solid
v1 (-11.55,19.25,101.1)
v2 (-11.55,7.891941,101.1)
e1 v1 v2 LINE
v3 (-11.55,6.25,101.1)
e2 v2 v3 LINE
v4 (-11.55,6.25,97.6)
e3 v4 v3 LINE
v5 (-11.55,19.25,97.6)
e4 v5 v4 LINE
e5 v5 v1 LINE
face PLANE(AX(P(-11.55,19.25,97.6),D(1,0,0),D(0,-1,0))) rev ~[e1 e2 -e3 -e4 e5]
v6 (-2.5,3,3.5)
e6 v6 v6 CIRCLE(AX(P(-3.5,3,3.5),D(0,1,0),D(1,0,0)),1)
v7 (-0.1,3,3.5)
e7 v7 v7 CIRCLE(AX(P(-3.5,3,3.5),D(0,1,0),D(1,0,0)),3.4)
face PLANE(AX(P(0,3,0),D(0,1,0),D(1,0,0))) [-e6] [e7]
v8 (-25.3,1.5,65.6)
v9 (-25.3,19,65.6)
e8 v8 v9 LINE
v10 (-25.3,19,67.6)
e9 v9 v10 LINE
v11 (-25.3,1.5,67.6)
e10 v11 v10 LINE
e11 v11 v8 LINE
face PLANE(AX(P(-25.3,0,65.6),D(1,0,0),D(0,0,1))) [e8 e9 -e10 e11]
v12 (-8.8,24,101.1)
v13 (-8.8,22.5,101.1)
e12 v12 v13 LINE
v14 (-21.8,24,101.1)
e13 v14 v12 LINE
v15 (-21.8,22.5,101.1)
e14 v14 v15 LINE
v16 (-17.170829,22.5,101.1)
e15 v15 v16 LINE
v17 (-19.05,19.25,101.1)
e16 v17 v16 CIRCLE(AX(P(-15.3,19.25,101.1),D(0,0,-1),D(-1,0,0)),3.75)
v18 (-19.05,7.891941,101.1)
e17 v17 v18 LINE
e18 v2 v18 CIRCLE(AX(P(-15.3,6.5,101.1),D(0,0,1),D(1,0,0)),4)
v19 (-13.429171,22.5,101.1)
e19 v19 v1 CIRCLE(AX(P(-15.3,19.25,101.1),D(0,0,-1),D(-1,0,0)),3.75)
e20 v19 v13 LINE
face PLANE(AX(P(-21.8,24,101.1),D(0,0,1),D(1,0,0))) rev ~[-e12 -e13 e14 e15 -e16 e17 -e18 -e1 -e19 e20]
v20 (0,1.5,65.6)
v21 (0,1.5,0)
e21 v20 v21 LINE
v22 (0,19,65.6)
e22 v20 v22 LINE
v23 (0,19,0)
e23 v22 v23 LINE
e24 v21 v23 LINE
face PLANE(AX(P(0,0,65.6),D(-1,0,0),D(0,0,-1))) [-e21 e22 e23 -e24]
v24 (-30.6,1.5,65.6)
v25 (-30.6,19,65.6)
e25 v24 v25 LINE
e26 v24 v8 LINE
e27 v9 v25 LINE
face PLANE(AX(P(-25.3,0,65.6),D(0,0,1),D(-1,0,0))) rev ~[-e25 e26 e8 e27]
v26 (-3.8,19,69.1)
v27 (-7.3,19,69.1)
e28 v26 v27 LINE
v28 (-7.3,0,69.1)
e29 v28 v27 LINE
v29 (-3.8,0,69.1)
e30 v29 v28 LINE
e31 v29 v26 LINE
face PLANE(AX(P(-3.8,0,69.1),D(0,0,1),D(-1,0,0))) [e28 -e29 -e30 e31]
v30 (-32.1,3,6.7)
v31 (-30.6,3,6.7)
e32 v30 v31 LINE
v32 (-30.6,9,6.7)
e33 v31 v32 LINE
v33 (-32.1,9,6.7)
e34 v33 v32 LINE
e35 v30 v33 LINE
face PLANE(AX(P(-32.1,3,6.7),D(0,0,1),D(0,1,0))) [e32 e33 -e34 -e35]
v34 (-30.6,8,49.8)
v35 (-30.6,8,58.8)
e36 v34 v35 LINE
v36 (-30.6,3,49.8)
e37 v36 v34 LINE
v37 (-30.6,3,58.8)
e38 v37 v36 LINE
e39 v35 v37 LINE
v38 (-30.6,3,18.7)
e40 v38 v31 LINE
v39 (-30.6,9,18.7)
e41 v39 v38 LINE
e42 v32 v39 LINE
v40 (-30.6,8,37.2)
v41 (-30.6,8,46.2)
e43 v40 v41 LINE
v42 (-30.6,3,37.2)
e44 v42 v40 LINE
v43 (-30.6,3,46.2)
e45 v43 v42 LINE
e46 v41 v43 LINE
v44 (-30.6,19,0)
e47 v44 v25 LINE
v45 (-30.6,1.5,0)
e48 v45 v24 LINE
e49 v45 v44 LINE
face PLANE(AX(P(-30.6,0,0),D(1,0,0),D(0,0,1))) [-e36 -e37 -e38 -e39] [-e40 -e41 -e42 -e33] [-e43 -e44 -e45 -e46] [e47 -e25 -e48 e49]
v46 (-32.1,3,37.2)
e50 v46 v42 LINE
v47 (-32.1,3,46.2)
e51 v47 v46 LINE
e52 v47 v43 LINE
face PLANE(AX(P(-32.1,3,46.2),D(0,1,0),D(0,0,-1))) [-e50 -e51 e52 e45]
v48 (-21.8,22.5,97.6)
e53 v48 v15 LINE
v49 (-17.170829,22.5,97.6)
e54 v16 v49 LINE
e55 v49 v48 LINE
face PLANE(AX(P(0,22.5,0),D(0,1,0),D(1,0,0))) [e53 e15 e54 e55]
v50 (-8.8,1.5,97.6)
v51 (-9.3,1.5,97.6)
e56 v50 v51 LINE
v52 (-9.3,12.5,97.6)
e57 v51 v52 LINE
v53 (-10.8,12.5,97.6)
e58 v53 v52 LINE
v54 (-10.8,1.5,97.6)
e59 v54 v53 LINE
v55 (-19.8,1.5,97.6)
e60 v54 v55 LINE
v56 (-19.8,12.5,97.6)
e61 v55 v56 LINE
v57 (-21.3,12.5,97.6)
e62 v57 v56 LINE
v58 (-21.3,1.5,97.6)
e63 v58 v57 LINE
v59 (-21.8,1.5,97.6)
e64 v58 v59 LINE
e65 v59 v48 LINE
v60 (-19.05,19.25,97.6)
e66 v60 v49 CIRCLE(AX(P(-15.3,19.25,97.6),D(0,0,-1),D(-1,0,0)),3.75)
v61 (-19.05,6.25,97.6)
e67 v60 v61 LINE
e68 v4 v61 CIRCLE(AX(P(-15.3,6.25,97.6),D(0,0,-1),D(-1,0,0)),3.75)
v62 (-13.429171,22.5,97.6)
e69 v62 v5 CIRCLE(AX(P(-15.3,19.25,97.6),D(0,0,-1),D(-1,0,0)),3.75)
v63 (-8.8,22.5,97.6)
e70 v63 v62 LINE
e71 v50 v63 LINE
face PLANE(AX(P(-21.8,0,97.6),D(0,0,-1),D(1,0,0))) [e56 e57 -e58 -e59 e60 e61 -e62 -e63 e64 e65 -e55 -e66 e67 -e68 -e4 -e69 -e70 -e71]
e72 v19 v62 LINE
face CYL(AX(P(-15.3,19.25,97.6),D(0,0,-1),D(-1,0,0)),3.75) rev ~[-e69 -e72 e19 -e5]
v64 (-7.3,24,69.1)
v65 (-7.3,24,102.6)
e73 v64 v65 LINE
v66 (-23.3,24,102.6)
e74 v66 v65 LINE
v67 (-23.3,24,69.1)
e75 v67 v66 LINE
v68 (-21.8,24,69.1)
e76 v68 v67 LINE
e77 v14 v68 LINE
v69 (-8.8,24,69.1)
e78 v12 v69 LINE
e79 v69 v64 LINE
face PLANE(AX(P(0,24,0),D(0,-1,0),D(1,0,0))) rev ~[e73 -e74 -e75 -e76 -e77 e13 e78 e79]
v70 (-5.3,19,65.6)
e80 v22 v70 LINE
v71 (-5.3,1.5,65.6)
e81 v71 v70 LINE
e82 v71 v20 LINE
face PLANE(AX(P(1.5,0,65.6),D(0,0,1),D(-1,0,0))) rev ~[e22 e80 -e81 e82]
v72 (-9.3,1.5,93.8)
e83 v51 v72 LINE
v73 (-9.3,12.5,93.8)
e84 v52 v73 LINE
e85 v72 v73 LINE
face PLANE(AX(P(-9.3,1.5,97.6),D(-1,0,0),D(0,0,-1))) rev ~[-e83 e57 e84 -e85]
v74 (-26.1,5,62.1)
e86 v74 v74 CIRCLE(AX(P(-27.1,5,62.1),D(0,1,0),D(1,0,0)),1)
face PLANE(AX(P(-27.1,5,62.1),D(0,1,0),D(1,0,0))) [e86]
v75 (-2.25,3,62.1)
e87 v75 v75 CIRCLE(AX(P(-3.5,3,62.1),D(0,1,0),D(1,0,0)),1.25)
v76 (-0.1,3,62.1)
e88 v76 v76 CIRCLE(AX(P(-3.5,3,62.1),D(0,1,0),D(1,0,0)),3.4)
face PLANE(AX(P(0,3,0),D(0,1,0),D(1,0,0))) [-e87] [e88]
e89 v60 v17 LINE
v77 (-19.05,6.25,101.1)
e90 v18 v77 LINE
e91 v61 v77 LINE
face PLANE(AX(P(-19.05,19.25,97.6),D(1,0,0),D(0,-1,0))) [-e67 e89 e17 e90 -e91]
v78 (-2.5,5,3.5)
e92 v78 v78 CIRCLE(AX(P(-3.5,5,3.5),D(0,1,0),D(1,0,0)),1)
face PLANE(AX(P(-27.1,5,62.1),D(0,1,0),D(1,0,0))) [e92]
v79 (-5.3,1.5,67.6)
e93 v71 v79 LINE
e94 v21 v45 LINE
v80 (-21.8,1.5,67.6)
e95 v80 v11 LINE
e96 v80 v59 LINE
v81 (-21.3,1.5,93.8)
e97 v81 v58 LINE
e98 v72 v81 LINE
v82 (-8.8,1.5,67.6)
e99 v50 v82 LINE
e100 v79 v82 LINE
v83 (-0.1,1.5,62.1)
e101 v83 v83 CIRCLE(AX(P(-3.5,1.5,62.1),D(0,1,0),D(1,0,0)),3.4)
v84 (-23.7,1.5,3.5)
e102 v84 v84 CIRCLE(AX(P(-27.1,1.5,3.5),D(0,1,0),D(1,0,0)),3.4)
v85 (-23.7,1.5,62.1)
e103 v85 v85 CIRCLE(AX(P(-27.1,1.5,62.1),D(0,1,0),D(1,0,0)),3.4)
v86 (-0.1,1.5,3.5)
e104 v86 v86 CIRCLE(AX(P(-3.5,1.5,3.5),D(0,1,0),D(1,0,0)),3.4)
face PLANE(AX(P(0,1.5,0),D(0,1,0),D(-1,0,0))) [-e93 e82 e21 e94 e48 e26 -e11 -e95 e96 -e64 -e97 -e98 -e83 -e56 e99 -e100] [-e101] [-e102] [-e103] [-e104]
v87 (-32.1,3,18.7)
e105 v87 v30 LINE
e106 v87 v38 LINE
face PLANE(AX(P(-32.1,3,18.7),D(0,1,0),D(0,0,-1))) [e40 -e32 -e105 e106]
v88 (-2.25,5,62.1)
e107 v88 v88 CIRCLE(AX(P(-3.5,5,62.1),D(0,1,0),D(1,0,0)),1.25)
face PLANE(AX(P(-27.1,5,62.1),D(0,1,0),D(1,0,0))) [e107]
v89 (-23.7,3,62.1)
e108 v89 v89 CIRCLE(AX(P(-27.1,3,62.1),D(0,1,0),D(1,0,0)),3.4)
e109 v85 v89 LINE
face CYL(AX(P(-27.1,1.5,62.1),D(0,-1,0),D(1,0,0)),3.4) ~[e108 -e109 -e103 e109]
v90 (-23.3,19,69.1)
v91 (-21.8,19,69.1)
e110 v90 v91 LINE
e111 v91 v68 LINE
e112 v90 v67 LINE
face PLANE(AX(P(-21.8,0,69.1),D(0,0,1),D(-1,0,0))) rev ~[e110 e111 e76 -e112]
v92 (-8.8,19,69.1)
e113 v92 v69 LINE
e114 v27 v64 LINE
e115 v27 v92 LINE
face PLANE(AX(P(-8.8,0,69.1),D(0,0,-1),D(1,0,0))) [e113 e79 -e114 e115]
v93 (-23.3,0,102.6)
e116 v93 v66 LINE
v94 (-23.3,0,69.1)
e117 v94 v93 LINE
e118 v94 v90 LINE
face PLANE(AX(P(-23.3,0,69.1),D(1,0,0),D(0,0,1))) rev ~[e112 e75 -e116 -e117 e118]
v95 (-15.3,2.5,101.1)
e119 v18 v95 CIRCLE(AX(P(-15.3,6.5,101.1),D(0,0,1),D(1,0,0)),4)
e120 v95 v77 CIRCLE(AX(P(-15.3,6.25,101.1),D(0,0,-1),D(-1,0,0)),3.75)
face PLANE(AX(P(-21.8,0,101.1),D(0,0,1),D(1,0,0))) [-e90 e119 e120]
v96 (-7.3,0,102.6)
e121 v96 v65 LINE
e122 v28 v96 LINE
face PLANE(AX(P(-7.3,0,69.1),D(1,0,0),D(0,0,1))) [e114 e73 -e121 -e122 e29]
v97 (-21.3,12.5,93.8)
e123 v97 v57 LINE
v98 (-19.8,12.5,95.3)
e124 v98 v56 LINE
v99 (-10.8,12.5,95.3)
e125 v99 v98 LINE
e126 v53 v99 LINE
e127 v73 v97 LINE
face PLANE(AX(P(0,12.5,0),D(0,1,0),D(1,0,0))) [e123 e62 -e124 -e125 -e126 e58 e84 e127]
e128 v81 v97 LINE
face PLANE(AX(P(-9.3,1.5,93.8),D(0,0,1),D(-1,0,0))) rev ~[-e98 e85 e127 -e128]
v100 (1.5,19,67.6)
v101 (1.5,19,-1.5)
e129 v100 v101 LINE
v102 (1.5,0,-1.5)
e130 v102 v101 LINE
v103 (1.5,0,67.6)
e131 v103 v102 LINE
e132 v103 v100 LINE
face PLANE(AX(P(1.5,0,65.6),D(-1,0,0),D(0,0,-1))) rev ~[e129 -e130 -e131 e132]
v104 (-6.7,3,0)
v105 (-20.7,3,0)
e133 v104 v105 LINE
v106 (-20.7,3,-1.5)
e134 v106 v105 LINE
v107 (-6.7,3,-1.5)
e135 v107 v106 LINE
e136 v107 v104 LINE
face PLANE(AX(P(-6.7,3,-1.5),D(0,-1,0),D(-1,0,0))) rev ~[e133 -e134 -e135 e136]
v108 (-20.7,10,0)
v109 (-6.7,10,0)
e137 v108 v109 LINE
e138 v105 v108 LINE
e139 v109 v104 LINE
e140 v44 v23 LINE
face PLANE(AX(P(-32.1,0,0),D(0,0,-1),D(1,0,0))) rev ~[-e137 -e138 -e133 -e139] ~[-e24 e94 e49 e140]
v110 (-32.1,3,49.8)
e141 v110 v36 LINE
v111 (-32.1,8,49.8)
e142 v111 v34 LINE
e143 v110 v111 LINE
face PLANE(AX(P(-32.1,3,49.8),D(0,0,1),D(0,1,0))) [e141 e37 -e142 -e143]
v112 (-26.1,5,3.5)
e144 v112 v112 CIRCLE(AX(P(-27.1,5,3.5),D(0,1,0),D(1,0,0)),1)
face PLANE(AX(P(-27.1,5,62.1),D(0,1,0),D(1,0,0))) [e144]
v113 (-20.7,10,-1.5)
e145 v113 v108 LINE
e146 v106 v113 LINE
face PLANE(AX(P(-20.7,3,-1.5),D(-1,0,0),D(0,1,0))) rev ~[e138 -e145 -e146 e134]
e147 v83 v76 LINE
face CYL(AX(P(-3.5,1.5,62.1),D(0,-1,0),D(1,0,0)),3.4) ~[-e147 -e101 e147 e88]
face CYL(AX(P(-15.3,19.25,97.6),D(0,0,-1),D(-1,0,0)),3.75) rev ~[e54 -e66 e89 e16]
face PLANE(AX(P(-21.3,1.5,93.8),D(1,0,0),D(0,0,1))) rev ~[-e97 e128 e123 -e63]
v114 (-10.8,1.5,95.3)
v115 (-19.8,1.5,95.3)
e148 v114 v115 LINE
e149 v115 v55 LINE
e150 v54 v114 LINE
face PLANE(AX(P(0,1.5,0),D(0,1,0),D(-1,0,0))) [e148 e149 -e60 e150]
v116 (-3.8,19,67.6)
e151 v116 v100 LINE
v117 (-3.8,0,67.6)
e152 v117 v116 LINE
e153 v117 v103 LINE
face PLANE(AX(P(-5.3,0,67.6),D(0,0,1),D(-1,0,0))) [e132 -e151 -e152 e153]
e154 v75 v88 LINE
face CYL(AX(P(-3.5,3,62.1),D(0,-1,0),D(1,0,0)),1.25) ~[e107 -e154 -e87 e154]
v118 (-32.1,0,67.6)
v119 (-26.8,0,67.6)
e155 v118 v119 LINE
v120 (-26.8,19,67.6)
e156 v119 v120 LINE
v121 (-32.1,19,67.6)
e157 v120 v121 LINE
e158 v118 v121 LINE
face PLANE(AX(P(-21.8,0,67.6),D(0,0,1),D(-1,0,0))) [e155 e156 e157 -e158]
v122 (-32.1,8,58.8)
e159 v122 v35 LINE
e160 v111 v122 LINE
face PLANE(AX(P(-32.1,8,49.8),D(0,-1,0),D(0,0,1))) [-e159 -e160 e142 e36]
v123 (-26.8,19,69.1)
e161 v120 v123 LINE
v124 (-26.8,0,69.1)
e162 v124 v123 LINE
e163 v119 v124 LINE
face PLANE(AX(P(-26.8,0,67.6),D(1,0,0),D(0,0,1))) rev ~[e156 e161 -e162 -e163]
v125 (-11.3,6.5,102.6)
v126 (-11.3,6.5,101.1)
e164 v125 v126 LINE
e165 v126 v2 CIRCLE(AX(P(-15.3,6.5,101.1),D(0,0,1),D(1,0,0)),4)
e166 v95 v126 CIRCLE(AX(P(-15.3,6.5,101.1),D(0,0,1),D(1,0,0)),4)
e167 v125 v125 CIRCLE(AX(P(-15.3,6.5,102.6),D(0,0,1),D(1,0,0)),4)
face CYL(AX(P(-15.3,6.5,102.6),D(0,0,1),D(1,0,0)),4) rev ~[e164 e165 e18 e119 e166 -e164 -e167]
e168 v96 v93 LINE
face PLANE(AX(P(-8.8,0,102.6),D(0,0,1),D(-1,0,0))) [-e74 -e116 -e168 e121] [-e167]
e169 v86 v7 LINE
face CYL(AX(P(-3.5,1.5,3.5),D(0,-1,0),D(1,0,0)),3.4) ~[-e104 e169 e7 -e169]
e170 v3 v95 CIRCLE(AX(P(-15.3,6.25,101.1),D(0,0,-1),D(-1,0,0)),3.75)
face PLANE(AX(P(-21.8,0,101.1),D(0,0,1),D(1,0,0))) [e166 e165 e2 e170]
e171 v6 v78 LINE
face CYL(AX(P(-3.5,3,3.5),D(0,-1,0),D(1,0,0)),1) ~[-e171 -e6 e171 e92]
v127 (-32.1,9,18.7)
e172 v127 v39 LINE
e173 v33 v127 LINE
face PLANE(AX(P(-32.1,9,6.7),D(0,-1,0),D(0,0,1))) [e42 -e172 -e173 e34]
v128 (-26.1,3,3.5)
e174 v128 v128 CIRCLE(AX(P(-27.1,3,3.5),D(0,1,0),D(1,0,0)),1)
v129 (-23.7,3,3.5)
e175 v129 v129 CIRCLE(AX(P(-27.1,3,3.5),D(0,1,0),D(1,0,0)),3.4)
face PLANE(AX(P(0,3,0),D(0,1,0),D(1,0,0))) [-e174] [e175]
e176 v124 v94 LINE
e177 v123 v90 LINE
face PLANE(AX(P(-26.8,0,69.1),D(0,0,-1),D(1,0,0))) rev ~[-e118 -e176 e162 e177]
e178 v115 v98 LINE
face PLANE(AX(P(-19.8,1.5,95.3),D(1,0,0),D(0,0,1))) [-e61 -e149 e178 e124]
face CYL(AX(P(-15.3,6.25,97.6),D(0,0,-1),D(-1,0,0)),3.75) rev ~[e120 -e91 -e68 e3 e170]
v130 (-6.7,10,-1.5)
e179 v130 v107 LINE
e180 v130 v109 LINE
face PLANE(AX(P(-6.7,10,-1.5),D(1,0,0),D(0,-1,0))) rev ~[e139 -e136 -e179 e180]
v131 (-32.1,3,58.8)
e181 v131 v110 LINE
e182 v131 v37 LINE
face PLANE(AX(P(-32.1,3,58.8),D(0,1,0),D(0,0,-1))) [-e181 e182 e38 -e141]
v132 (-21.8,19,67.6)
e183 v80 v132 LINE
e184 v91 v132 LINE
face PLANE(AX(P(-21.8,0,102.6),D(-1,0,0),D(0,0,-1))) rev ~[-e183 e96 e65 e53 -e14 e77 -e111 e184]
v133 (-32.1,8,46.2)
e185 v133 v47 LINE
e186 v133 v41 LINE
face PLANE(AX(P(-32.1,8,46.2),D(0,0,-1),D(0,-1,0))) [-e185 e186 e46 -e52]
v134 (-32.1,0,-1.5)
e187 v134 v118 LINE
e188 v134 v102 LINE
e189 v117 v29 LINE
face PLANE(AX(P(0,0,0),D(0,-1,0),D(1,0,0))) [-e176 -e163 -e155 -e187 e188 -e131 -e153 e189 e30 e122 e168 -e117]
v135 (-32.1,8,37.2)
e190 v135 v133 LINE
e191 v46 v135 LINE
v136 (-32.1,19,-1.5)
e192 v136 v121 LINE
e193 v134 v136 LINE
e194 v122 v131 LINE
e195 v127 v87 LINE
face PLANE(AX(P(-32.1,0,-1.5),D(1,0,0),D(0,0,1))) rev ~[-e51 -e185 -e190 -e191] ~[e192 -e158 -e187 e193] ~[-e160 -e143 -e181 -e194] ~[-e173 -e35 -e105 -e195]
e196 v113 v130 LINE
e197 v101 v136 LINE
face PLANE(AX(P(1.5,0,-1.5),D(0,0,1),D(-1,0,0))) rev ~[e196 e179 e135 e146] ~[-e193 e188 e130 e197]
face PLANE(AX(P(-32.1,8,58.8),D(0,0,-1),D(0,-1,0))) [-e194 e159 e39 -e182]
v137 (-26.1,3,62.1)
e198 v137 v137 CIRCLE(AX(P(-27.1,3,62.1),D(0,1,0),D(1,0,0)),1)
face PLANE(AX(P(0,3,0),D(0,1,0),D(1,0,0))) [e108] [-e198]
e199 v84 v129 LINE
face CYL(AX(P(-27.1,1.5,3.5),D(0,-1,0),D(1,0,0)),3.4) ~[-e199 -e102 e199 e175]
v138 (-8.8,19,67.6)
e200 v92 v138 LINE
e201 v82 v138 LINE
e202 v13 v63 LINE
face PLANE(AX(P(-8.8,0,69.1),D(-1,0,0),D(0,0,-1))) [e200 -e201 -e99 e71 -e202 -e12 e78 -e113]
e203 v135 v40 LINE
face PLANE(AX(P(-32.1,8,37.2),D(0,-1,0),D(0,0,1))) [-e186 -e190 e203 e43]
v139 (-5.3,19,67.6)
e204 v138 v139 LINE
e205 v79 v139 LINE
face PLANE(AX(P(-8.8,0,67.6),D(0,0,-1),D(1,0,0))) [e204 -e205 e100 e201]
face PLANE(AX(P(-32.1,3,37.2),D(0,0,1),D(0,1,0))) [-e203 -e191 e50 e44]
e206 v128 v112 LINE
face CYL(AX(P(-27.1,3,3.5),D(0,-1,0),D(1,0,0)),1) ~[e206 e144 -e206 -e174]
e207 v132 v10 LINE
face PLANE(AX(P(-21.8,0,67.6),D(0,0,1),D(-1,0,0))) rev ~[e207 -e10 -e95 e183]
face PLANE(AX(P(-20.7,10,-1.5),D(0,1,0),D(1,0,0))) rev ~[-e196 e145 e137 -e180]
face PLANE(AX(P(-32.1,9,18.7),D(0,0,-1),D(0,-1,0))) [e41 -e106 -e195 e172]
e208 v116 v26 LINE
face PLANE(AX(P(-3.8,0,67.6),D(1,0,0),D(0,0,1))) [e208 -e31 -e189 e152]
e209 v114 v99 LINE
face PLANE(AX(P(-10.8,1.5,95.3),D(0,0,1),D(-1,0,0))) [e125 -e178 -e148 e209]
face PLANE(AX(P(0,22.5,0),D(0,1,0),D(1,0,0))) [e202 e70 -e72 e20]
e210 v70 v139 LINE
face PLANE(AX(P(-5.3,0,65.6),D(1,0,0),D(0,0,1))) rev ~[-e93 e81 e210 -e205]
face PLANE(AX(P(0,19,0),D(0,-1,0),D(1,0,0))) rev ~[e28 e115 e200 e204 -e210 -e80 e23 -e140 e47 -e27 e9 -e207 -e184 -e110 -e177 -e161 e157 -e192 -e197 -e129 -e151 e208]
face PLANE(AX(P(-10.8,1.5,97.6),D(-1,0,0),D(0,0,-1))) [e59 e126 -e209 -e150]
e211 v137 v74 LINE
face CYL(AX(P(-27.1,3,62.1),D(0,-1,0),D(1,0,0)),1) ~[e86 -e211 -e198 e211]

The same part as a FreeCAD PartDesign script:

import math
import FreeCAD as App
import Part
import Sketcher

V = App.Vector
Q = App.Units.Quantity

doc = App.newDocument("Part")
body = doc.addObject("PartDesign::Body", "Body")

sketch1 = body.newObject("Sketcher::SketchObject", "Sketch")
sketch1.AttachmentSupport = (doc.getObject("XZ_Plane"), [""])
sketch1.MapMode = "FlatFace"
sketch1.addGeometry(Part.LineSegment(V(0, 66, 0), V(0, 0, 0)), False)
sketch1.addGeometry(Part.LineSegment(V(0, 0, 0), V(-31, 0, 0)), False)
sketch1.addGeometry(Part.LineSegment(V(-31, 0, 0), V(-31, 66, 0)), False)
sketch1.addGeometry(Part.LineSegment(V(-31, 66, 0), V(0, 66, 0)), False)
sketch1.addConstraint(Sketcher.Constraint("Coincident", 0, 2, 1, 1))
sketch1.addConstraint(Sketcher.Constraint("Coincident", 1, 2, 2, 1))
sketch1.addConstraint(Sketcher.Constraint("Coincident", 2, 2, 3, 1))
sketch1.addConstraint(Sketcher.Constraint("Coincident", 3, 2, 0, 1))
sketch1.addConstraint(Sketcher.Constraint("Vertical", 0))
sketch1.addConstraint(Sketcher.Constraint("Horizontal", 1))
sketch1.addConstraint(Sketcher.Constraint("Vertical", 2))
sketch1.addConstraint(Sketcher.Constraint("Horizontal", 3))
sketch1.addConstraint(Sketcher.Constraint("Coincident", 0, 2, -1, 1))
sketch1.addConstraint(Sketcher.Constraint("DistanceX", 1, 2, 1, 1, Q("30.6 mm")))
sketch1.addConstraint(Sketcher.Constraint("DistanceY", 0, 2, 0, 1, Q("65.6 mm")))
pad1 = body.newObject("PartDesign::Pad", "Pad")
pad1.Profile = sketch1
pad1.Length = 1.5
pad1.Reversed = True

sketch2 = body.newObject("Sketcher::SketchObject", "Sketch001")
sketch2.AttachmentSupport = (doc.getObject("XZ_Plane"), [""])
sketch2.MapMode = "FlatFace"
sketch2.AttachmentOffset = App.Placement(V(0, 0, -1.5), App.Rotation())
sketch2.addGeometry(Part.Circle(V(-27.1, 62.1, 0), V(0, 0, 1), 3.4), False)
sketch2.addGeometry(Part.Circle(V(-3.5, 62.1, 0), V(0, 0, 1), 3.4), False)
sketch2.addGeometry(Part.Circle(V(-3.5, 3.5, 0), V(0, 0, 1), 3.4), False)
sketch2.addGeometry(Part.Circle(V(-27.1, 3.5, 0), V(0, 0, 1), 3.4), False)
sketch2.addConstraint(Sketcher.Constraint("Equal", 0, 1))
sketch2.addConstraint(Sketcher.Constraint("Equal", 1, 2))
sketch2.addConstraint(Sketcher.Constraint("Equal", 2, 3))
sketch2.addConstraint(Sketcher.Constraint("Horizontal", 0, 3, 1, 3))
sketch2.addConstraint(Sketcher.Constraint("Horizontal", 2, 3, 3, 3))
sketch2.addConstraint(Sketcher.Constraint("Vertical", 1, 3, 2, 3))
sketch2.addConstraint(Sketcher.Constraint("Vertical", 0, 3, 3, 3))
sketch2.addConstraint(Sketcher.Constraint("Diameter", 0, Q("6.8 mm")))
sketch2.addConstraint(Sketcher.Constraint("DistanceX", 1, 3, -1, 1, Q("3.5 mm")))
sketch2.addConstraint(Sketcher.Constraint("DistanceY", -1, 1, 2, 3, Q("3.5 mm")))
sketch2.addConstraint(Sketcher.Constraint("DistanceX", 0, 3, -1, 1, Q("27.1 mm")))
sketch2.addConstraint(Sketcher.Constraint("DistanceY", -1, 1, 0, 3, Q("62.1 mm")))
pad2 = body.newObject("PartDesign::Pad", "Pad001")
pad2.Profile = sketch2
pad2.Length = 1.5
pad2.Reversed = True

sketch3 = body.newObject("Sketcher::SketchObject", "Sketch002")
sketch3.AttachmentSupport = (doc.getObject("XZ_Plane"), [""])
sketch3.MapMode = "FlatFace"
sketch3.AttachmentOffset = App.Placement(V(0, 0, -3), App.Rotation())
sketch3.addGeometry(Part.Circle(V(-3.5, 62.1, 0), V(0, 0, 1), 1.2), False)
sketch3.addGeometry(Part.Circle(V(-27.1, 62.1, 0), V(0, 0, 1), 1), False)
sketch3.addGeometry(Part.Circle(V(-27.1, 3.5, 0), V(0, 0, 1), 1), False)
sketch3.addGeometry(Part.Circle(V(-3.5, 3.5, 0), V(0, 0, 1), 1), False)
sketch3.addConstraint(Sketcher.Constraint("Equal", 1, 2))
sketch3.addConstraint(Sketcher.Constraint("Equal", 2, 3))
sketch3.addConstraint(Sketcher.Constraint("Horizontal", 0, 3, 1, 3))
sketch3.addConstraint(Sketcher.Constraint("Horizontal", 2, 3, 3, 3))
sketch3.addConstraint(Sketcher.Constraint("Vertical", 1, 3, 2, 3))
sketch3.addConstraint(Sketcher.Constraint("Vertical", 0, 3, 3, 3))
sketch3.addConstraint(Sketcher.Constraint("Diameter", 1, Q("2 mm")))
sketch3.addConstraint(Sketcher.Constraint("Diameter", 0, Q("2.5 mm")))
sketch3.addConstraint(Sketcher.Constraint("DistanceX", 0, 3, -1, 1, Q("3.5 mm")))
sketch3.addConstraint(Sketcher.Constraint("DistanceY", -1, 1, 0, 3, Q("62.1 mm")))
sketch3.addConstraint(Sketcher.Constraint("DistanceX", 1, 3, -1, 1, Q("27.1 mm")))
sketch3.addConstraint(Sketcher.Constraint("DistanceY", -1, 1, 2, 3, Q("3.5 mm")))
pad3 = body.newObject("PartDesign::Pad", "Pad002")
pad3.Profile = sketch3
pad3.Length = 2
pad3.Reversed = True

sketch4 = body.newObject("Sketcher::SketchObject", "Sketch003")
sketch4.AttachmentSupport = (doc.getObject("XZ_Plane"), [""])
sketch4.MapMode = "FlatFace"
sketch4.addGeometry(Part.LineSegment(V(-25.3, 67.6, 0), V(-25.3, 65.6, 0)), False)
sketch4.addGeometry(Part.LineSegment(V(-25.3, 65.6, 0), V(-5.3, 65.6, 0)), False)
sketch4.addGeometry(Part.LineSegment(V(-5.3, 65.6, 0), V(-5.3, 67.6, 0)), False)
sketch4.addGeometry(Part.LineSegment(V(-5.3, 67.6, 0), V(-8.8, 67.6, 0)), False)
sketch4.addGeometry(Part.LineSegment(V(-8.8, 67.6, 0), V(-8.8, 97.6, 0)), False)
sketch4.addGeometry(Part.LineSegment(V(-8.8, 97.6, 0), V(-21.8, 97.6, 0)), False)
sketch4.addGeometry(Part.LineSegment(V(-21.8, 97.6, 0), V(-21.8, 67.6, 0)), False)
sketch4.addGeometry(Part.LineSegment(V(-21.8, 67.6, 0), V(-25.3, 67.6, 0)), False)
sketch4.addConstraint(Sketcher.Constraint("Coincident", 0, 2, 1, 1))
sketch4.addConstraint(Sketcher.Constraint("Coincident", 1, 2, 2, 1))
sketch4.addConstraint(Sketcher.Constraint("Coincident", 2, 2, 3, 1))
sketch4.addConstraint(Sketcher.Constraint("Coincident", 3, 2, 4, 1))
sketch4.addConstraint(Sketcher.Constraint("Coincident", 4, 2, 5, 1))
sketch4.addConstraint(Sketcher.Constraint("Coincident", 5, 2, 6, 1))
sketch4.addConstraint(Sketcher.Constraint("Coincident", 6, 2, 7, 1))
sketch4.addConstraint(Sketcher.Constraint("Coincident", 7, 2, 0, 1))
sketch4.addConstraint(Sketcher.Constraint("Vertical", 0))
sketch4.addConstraint(Sketcher.Constraint("Horizontal", 1))
sketch4.addConstraint(Sketcher.Constraint("Vertical", 2))
sketch4.addConstraint(Sketcher.Constraint("Horizontal", 3))
sketch4.addConstraint(Sketcher.Constraint("Vertical", 4))
sketch4.addConstraint(Sketcher.Constraint("Horizontal", 5))
sketch4.addConstraint(Sketcher.Constraint("Vertical", 6))
sketch4.addConstraint(Sketcher.Constraint("Horizontal", 7))
sketch4.addConstraint(Sketcher.Constraint("Horizontal", 3, 2, 6, 2))
sketch4.addConstraint(Sketcher.Constraint("Equal", 3, 7))
sketch4.addConstraint(Sketcher.Constraint("DistanceX", 1, 1, 1, 2, Q("20 mm")))
sketch4.addConstraint(Sketcher.Constraint("DistanceX", 5, 2, 5, 1, Q("13 mm")))
sketch4.addConstraint(Sketcher.Constraint("DistanceY", 0, 2, 0, 1, Q("2 mm")))
sketch4.addConstraint(Sketcher.Constraint("DistanceY", 4, 1, 4, 2, Q("30 mm")))
sketch4.addConstraint(Sketcher.Constraint("DistanceX", 0, 2, -1, 1, Q("25.3 mm")))
sketch4.addConstraint(Sketcher.Constraint("DistanceY", -1, 1, 0, 2, Q("65.6 mm")))
pad4 = body.newObject("PartDesign::Pad", "Pad003")
pad4.Profile = sketch4
pad4.Length = 1.5
pad4.Reversed = True

sketch5 = body.newObject("Sketcher::SketchObject", "Sketch004")
sketch5.AttachmentSupport = (doc.getObject("XZ_Plane"), [""])
sketch5.MapMode = "FlatFace"
sketch5.addGeometry(Part.LineSegment(V(-21.8, 101.1, 0), V(-21.8, 97.6, 0)), False)
sketch5.addGeometry(Part.LineSegment(V(-21.8, 97.6, 0), V(-8.8, 97.6, 0)), False)
sketch5.addGeometry(Part.LineSegment(V(-8.8, 97.6, 0), V(-8.8, 101.1, 0)), False)
sketch5.addGeometry(Part.LineSegment(V(-8.8, 101.1, 0), V(-21.8, 101.1, 0)), False)
sketch5.addConstraint(Sketcher.Constraint("Coincident", 0, 2, 1, 1))
sketch5.addConstraint(Sketcher.Constraint("Coincident", 1, 2, 2, 1))
sketch5.addConstraint(Sketcher.Constraint("Coincident", 2, 2, 3, 1))
sketch5.addConstraint(Sketcher.Constraint("Coincident", 3, 2, 0, 1))
sketch5.addConstraint(Sketcher.Constraint("Vertical", 0))
sketch5.addConstraint(Sketcher.Constraint("Horizontal", 1))
sketch5.addConstraint(Sketcher.Constraint("Vertical", 2))
sketch5.addConstraint(Sketcher.Constraint("Horizontal", 3))
sketch5.addConstraint(Sketcher.Constraint("DistanceX", 1, 1, 1, 2, Q("13 mm")))
sketch5.addConstraint(Sketcher.Constraint("DistanceY", 0, 2, 0, 1, Q("3.5 mm")))
sketch5.addConstraint(Sketcher.Constraint("DistanceX", 0, 2, -1, 1, Q("21.8 mm")))
sketch5.addConstraint(Sketcher.Constraint("DistanceY", -1, 1, 0, 2, Q("97.6 mm")))
pad5 = body.newObject("PartDesign::Pad", "Pad004")
pad5.Profile = sketch5
pad5.Length = 24
pad5.Reversed = True

sketch6 = body.newObject("Sketcher::SketchObject", "Sketch005")
sketch6.AttachmentSupport = (doc.getObject("XZ_Plane"), [""])
sketch6.MapMode = "FlatFace"
sketch6.AttachmentOffset = App.Placement(V(0, 0, -1.5), App.Rotation())
sketch6.addGeometry(Part.LineSegment(V(-21.3, 97.6, 0), V(-19.8, 97.6, 0)), False)
sketch6.addGeometry(Part.LineSegment(V(-19.8, 97.6, 0), V(-19.8, 95.3, 0)), False)
sketch6.addGeometry(Part.LineSegment(V(-19.8, 95.3, 0), V(-10.8, 95.3, 0)), False)
sketch6.addGeometry(Part.LineSegment(V(-10.8, 95.3, 0), V(-10.8, 97.6, 0)), False)
sketch6.addGeometry(Part.LineSegment(V(-10.8, 97.6, 0), V(-9.3, 97.6, 0)), False)
sketch6.addGeometry(Part.LineSegment(V(-9.3, 97.6, 0), V(-9.3, 93.8, 0)), False)
sketch6.addGeometry(Part.LineSegment(V(-9.3, 93.8, 0), V(-21.3, 93.8, 0)), False)
sketch6.addGeometry(Part.LineSegment(V(-21.3, 93.8, 0), V(-21.3, 97.6, 0)), False)
sketch6.addConstraint(Sketcher.Constraint("Coincident", 0, 2, 1, 1))
sketch6.addConstraint(Sketcher.Constraint("Coincident", 1, 2, 2, 1))
sketch6.addConstraint(Sketcher.Constraint("Coincident", 2, 2, 3, 1))
sketch6.addConstraint(Sketcher.Constraint("Coincident", 3, 2, 4, 1))
sketch6.addConstraint(Sketcher.Constraint("Coincident", 4, 2, 5, 1))
sketch6.addConstraint(Sketcher.Constraint("Coincident", 5, 2, 6, 1))
sketch6.addConstraint(Sketcher.Constraint("Coincident", 6, 2, 7, 1))
sketch6.addConstraint(Sketcher.Constraint("Coincident", 7, 2, 0, 1))
sketch6.addConstraint(Sketcher.Constraint("Horizontal", 0))
sketch6.addConstraint(Sketcher.Constraint("Vertical", 1))
sketch6.addConstraint(Sketcher.Constraint("Horizontal", 2))
sketch6.addConstraint(Sketcher.Constraint("Vertical", 3))
sketch6.addConstraint(Sketcher.Constraint("Horizontal", 4))
sketch6.addConstraint(Sketcher.Constraint("Vertical", 5))
sketch6.addConstraint(Sketcher.Constraint("Horizontal", 6))
sketch6.addConstraint(Sketcher.Constraint("Vertical", 7))
sketch6.addConstraint(Sketcher.Constraint("Horizontal", 0, 2, 3, 2))
sketch6.addConstraint(Sketcher.Constraint("Equal", 0, 4))
sketch6.addConstraint(Sketcher.Constraint("DistanceX", 2, 1, 2, 2, Q("9 mm")))
sketch6.addConstraint(Sketcher.Constraint("DistanceX", 6, 2, 6, 1, Q("12 mm")))
sketch6.addConstraint(Sketcher.Constraint("DistanceY", 1, 2, 1, 1, Q("2.3 mm")))
sketch6.addConstraint(Sketcher.Constraint("DistanceY", 5, 2, 5, 1, Q("3.8 mm")))
sketch6.addConstraint(Sketcher.Constraint("DistanceX", 0, 2, -1, 1, Q("19.8 mm")))
sketch6.addConstraint(Sketcher.Constraint("DistanceY", -1, 1, 0, 2, Q("97.6 mm")))
pad6 = body.newObject("PartDesign::Pad", "Pad005")
pad6.Profile = sketch6
pad6.Length = 11
pad6.Reversed = True

sketch7 = body.newObject("Sketcher::SketchObject", "Sketch006")
sketch7.AttachmentSupport = (doc.getObject("XY_Plane"), [""])
sketch7.MapMode = "FlatFace"
sketch7.AttachmentOffset = App.Placement(V(0, 0, 97.6), App.Rotation())
sketch7.addGeometry(Part.ArcOfCircle(Part.Circle(V(-15.3, 19.2, 0), V(0, 0, 1), 3.8), math.radians(0), math.radians(180)), False)
sketch7.addGeometry(Part.LineSegment(V(-11.6, 19.2, 0), V(-11.6, 6.2, 0)), False)
sketch7.addGeometry(Part.ArcOfCircle(Part.Circle(V(-15.3, 6.2, 0), V(0, 0, 1), 3.8), math.radians(180), math.radians(360)), False)
sketch7.addGeometry(Part.LineSegment(V(-19.1, 6.2, 0), V(-19.1, 19.2, 0)), False)
sketch7.addConstraint(Sketcher.Constraint("Tangent", 0, 1, 1, 1))
sketch7.addConstraint(Sketcher.Constraint("Tangent", 1, 2, 2, 2))
sketch7.addConstraint(Sketcher.Constraint("Tangent", 2, 1, 3, 1))
sketch7.addConstraint(Sketcher.Constraint("Tangent", 3, 2, 0, 2))
sketch7.addConstraint(Sketcher.Constraint("Vertical", 1))
sketch7.addConstraint(Sketcher.Constraint("Vertical", 3))
sketch7.addConstraint(Sketcher.Constraint("Radius", 0, Q("3.75 mm")))
sketch7.addConstraint(Sketcher.Constraint("DistanceY", 1, 2, 1, 1, Q("13 mm")))
sketch7.addConstraint(Sketcher.Constraint("DistanceX", 0, 3, -1, 1, Q("15.3 mm")))
sketch7.addConstraint(Sketcher.Constraint("DistanceY", -1, 1, 0, 3, Q("19.25 mm")))
pocket1 = body.newObject("PartDesign::Pocket", "Pocket")
pocket1.Profile = sketch7
pocket1.Length = 11
pocket1.Reversed = True

sketch8 = body.newObject("Sketcher::SketchObject", "Sketch007")
sketch8.AttachmentSupport = (doc.getObject("XZ_Plane"), [""])
sketch8.MapMode = "FlatFace"
sketch8.addGeometry(Part.LineSegment(V(-21.8, 102.6, 0), V(-21.8, 101.1, 0)), False)
sketch8.addGeometry(Part.LineSegment(V(-21.8, 101.1, 0), V(-8.8, 101.1, 0)), False)
sketch8.addGeometry(Part.LineSegment(V(-8.8, 101.1, 0), V(-8.8, 102.6, 0)), False)
sketch8.addGeometry(Part.LineSegment(V(-8.8, 102.6, 0), V(-21.8, 102.6, 0)), False)
sketch8.addConstraint(Sketcher.Constraint("Coincident", 0, 2, 1, 1))
sketch8.addConstraint(Sketcher.Constraint("Coincident", 1, 2, 2, 1))
sketch8.addConstraint(Sketcher.Constraint("Coincident", 2, 2, 3, 1))
sketch8.addConstraint(Sketcher.Constraint("Coincident", 3, 2, 0, 1))
sketch8.addConstraint(Sketcher.Constraint("Vertical", 0))
sketch8.addConstraint(Sketcher.Constraint("Horizontal", 1))
sketch8.addConstraint(Sketcher.Constraint("Vertical", 2))
sketch8.addConstraint(Sketcher.Constraint("Horizontal", 3))
sketch8.addConstraint(Sketcher.Constraint("DistanceX", 1, 1, 1, 2, Q("13 mm")))
sketch8.addConstraint(Sketcher.Constraint("DistanceY", 0, 2, 0, 1, Q("1.5 mm")))
sketch8.addConstraint(Sketcher.Constraint("DistanceX", 0, 2, -1, 1, Q("21.8 mm")))
sketch8.addConstraint(Sketcher.Constraint("DistanceY", -1, 1, 0, 2, Q("101.1 mm")))
pad7 = body.newObject("PartDesign::Pad", "Pad006")
pad7.Profile = sketch8
pad7.Length = 24
pad7.Reversed = True

sketch9 = body.newObject("Sketcher::SketchObject", "Sketch008")
sketch9.AttachmentSupport = (doc.getObject("XY_Plane"), [""])
sketch9.MapMode = "FlatFace"
sketch9.AttachmentOffset = App.Placement(V(0, 0, 102.6), App.Rotation())
sketch9.addGeometry(Part.Circle(V(-15.3, 6.5, 0), V(0, 0, 1), 4), False)
sketch9.addConstraint(Sketcher.Constraint("Diameter", 0, Q("8 mm")))
sketch9.addConstraint(Sketcher.Constraint("DistanceY", -1, 1, 0, 3, Q("6.5 mm")))
sketch9.addConstraint(Sketcher.Constraint("DistanceX", 0, 3, -1, 1, Q("15.3 mm")))
pocket2 = body.newObject("PartDesign::Pocket", "Pocket001")
pocket2.Profile = sketch9
pocket2.Length = 1.5

sketch10 = body.newObject("Sketcher::SketchObject", "Sketch009")
sketch10.AttachmentSupport = (doc.getObject("XZ_Plane"), [""])
sketch10.MapMode = "FlatFace"
sketch10.AttachmentOffset = App.Placement(V(0, 0, -24), App.Rotation())
sketch10.addGeometry(Part.LineSegment(V(-8.8, 101.1, 0), V(-8.8, 97.6, 0)), False)
sketch10.addGeometry(Part.LineSegment(V(-8.8, 97.6, 0), V(-21.8, 97.6, 0)), False)
sketch10.addGeometry(Part.LineSegment(V(-21.8, 97.6, 0), V(-21.8, 101.1, 0)), False)
sketch10.addGeometry(Part.LineSegment(V(-21.8, 101.1, 0), V(-8.8, 101.1, 0)), False)
sketch10.addConstraint(Sketcher.Constraint("Coincident", 0, 2, 1, 1))
sketch10.addConstraint(Sketcher.Constraint("Coincident", 1, 2, 2, 1))
sketch10.addConstraint(Sketcher.Constraint("Coincident", 2, 2, 3, 1))
sketch10.addConstraint(Sketcher.Constraint("Coincident", 3, 2, 0, 1))
sketch10.addConstraint(Sketcher.Constraint("Vertical", 0))
sketch10.addConstraint(Sketcher.Constraint("Horizontal", 1))
sketch10.addConstraint(Sketcher.Constraint("Vertical", 2))
sketch10.addConstraint(Sketcher.Constraint("Horizontal", 3))
sketch10.addConstraint(Sketcher.Constraint("DistanceX", 1, 2, 1, 1, Q("13 mm")))
sketch10.addConstraint(Sketcher.Constraint("DistanceY", 0, 2, 0, 1, Q("3.5 mm")))
sketch10.addConstraint(Sketcher.Constraint("DistanceX", 0, 2, -1, 1, Q("8.8 mm")))
sketch10.addConstraint(Sketcher.Constraint("DistanceY", -1, 1, 0, 2, Q("97.6 mm")))
pocket3 = body.newObject("PartDesign::Pocket", "Pocket002")
pocket3.Profile = sketch10
pocket3.Length = 1.5
pocket3.Reversed = True

sketch11 = body.newObject("Sketcher::SketchObject", "Sketch010")
sketch11.AttachmentSupport = (doc.getObject("XZ_Plane"), [""])
sketch11.MapMode = "FlatFace"
sketch11.addGeometry(Part.LineSegment(V(-32.1, 0, 0), V(-30.6, 0, 0)), False)
sketch11.addGeometry(Part.LineSegment(V(-30.6, 0, 0), V(-30.6, 65.6, 0)), False)
sketch11.addGeometry(Part.LineSegment(V(-30.6, 65.6, 0), V(-32.1, 65.6, 0)), False)
sketch11.addGeometry(Part.LineSegment(V(-32.1, 65.6, 0), V(-32.1, 0, 0)), False)
sketch11.addConstraint(Sketcher.Constraint("Coincident", 0, 2, 1, 1))
sketch11.addConstraint(Sketcher.Constraint("Coincident", 1, 2, 2, 1))
sketch11.addConstraint(Sketcher.Constraint("Coincident", 2, 2, 3, 1))
sketch11.addConstraint(Sketcher.Constraint("Coincident", 3, 2, 0, 1))
sketch11.addConstraint(Sketcher.Constraint("Horizontal", 0))
sketch11.addConstraint(Sketcher.Constraint("Vertical", 1))
sketch11.addConstraint(Sketcher.Constraint("Horizontal", 2))
sketch11.addConstraint(Sketcher.Constraint("Vertical", 3))
sketch11.addConstraint(Sketcher.Constraint("PointOnObject", 0, 2, -1))
sketch11.addConstraint(Sketcher.Constraint("DistanceX", 0, 1, 0, 2, Q("1.5 mm")))
sketch11.addConstraint(Sketcher.Constraint("DistanceY", 1, 1, 1, 2, Q("65.6 mm")))
sketch11.addConstraint(Sketcher.Constraint("DistanceX", 0, 2, -1, 1, Q("30.6 mm")))
pad8 = body.newObject("PartDesign::Pad", "Pad007")
pad8.Profile = sketch11
pad8.Length = 19
pad8.Reversed = True

sketch12 = body.newObject("Sketcher::SketchObject", "Sketch011")
sketch12.AttachmentSupport = (doc.getObject("YZ_Plane"), [""])
sketch12.MapMode = "FlatFace"
sketch12.AttachmentOffset = App.Placement(V(0, 0, -32.1), App.Rotation())
sketch12.addGeometry(Part.LineSegment(V(3, 37, 0), V(3, 46, 0)), False)
sketch12.addGeometry(Part.LineSegment(V(3, 46, 0), V(8, 46, 0)), False)
sketch12.addGeometry(Part.LineSegment(V(8, 46, 0), V(8, 37, 0)), False)
sketch12.addGeometry(Part.LineSegment(V(8, 37, 0), V(3, 37, 0)), False)
sketch12.addGeometry(Part.LineSegment(V(3, 50, 0), V(3, 59, 0)), False)
sketch12.addGeometry(Part.LineSegment(V(3, 59, 0), V(8, 59, 0)), False)
sketch12.addGeometry(Part.LineSegment(V(8, 59, 0), V(8, 50, 0)), False)
sketch12.addGeometry(Part.LineSegment(V(8, 50, 0), V(3, 50, 0)), False)
sketch12.addGeometry(Part.LineSegment(V(3, 7, 0), V(3, 19, 0)), False)
sketch12.addGeometry(Part.LineSegment(V(3, 19, 0), V(9, 19, 0)), False)
sketch12.addGeometry(Part.LineSegment(V(9, 19, 0), V(9, 7, 0)), False)
sketch12.addGeometry(Part.LineSegment(V(9, 7, 0), V(3, 7, 0)), False)
sketch12.addConstraint(Sketcher.Constraint("Coincident", 0, 2, 1, 1))
sketch12.addConstraint(Sketcher.Constraint("Coincident", 1, 2, 2, 1))
sketch12.addConstraint(Sketcher.Constraint("Coincident", 2, 2, 3, 1))
sketch12.addConstraint(Sketcher.Constraint("Coincident", 3, 2, 0, 1))
sketch12.addConstraint(Sketcher.Constraint("Coincident", 4, 2, 5, 1))
sketch12.addConstraint(Sketcher.Constraint("Coincident", 5, 2, 6, 1))
sketch12.addConstraint(Sketcher.Constraint("Coincident", 6, 2, 7, 1))
sketch12.addConstraint(Sketcher.Constraint("Coincident", 7, 2, 4, 1))
sketch12.addConstraint(Sketcher.Constraint("Coincident", 8, 2, 9, 1))
sketch12.addConstraint(Sketcher.Constraint("Coincident", 9, 2, 10, 1))
sketch12.addConstraint(Sketcher.Constraint("Coincident", 10, 2, 11, 1))
sketch12.addConstraint(Sketcher.Constraint("Coincident", 11, 2, 8, 1))
sketch12.addConstraint(Sketcher.Constraint("Vertical", 0))
sketch12.addConstraint(Sketcher.Constraint("Horizontal", 1))
sketch12.addConstraint(Sketcher.Constraint("Vertical", 2))
sketch12.addConstraint(Sketcher.Constraint("Horizontal", 3))
sketch12.addConstraint(Sketcher.Constraint("Vertical", 4))
sketch12.addConstraint(Sketcher.Constraint("Horizontal", 5))
sketch12.addConstraint(Sketcher.Constraint("Vertical", 6))
sketch12.addConstraint(Sketcher.Constraint("Horizontal", 7))
sketch12.addConstraint(Sketcher.Constraint("Vertical", 8))
sketch12.addConstraint(Sketcher.Constraint("Horizontal", 9))
sketch12.addConstraint(Sketcher.Constraint("Vertical", 10))
sketch12.addConstraint(Sketcher.Constraint("Horizontal", 11))
sketch12.addConstraint(Sketcher.Constraint("Vertical", 3, 2, 4, 2))
sketch12.addConstraint(Sketcher.Constraint("Vertical", 2, 2, 5, 2))
sketch12.addConstraint(Sketcher.Constraint("Vertical", 7, 2, 8, 2))
sketch12.addConstraint(Sketcher.Constraint("Equal", 2, 4))
sketch12.addConstraint(Sketcher.Constraint("DistanceX", 1, 1, 1, 2, Q("5 mm")))
sketch12.addConstraint(Sketcher.Constraint("DistanceX", 9, 1, 9, 2, Q("6 mm")))
sketch12.addConstraint(Sketcher.Constraint("DistanceY", 0, 1, 0, 2, Q("9 mm")))
sketch12.addConstraint(Sketcher.Constraint("DistanceY", 8, 1, 8, 2, Q("12 mm")))
sketch12.addConstraint(Sketcher.Constraint("DistanceX", -1, 1, 0, 2, Q("3 mm")))
sketch12.addConstraint(Sketcher.Constraint("DistanceY", -1, 1, 0, 2, Q("46.2 mm")))
sketch12.addConstraint(Sketcher.Constraint("DistanceY", -1, 1, 4, 2, Q("58.8 mm")))
sketch12.addConstraint(Sketcher.Constraint("DistanceY", -1, 1, 8, 2, Q("18.7 mm")))
pocket4 = body.newObject("PartDesign::Pocket", "Pocket003")
pocket4.Profile = sketch12
pocket4.Length = 1.5
pocket4.Reversed = True

sketch13 = body.newObject("Sketcher::SketchObject", "Sketch012")
sketch13.AttachmentSupport = (doc.getObject("XZ_Plane"), [""])
sketch13.MapMode = "FlatFace"
sketch13.addGeometry(Part.LineSegment(V(0, 0, 0), V(-32.1, 0, 0)), False)
sketch13.addGeometry(Part.LineSegment(V(-32.1, 0, 0), V(-32.1, -1.5, 0)), False)
sketch13.addGeometry(Part.LineSegment(V(-32.1, -1.5, 0), V(0, -1.5, 0)), False)
sketch13.addGeometry(Part.LineSegment(V(0, -1.5, 0), V(0, 0, 0)), False)
sketch13.addConstraint(Sketcher.Constraint("Coincident", 0, 2, 1, 1))
sketch13.addConstraint(Sketcher.Constraint("Coincident", 1, 2, 2, 1))
sketch13.addConstraint(Sketcher.Constraint("Coincident", 2, 2, 3, 1))
sketch13.addConstraint(Sketcher.Constraint("Coincident", 3, 2, 0, 1))
sketch13.addConstraint(Sketcher.Constraint("Horizontal", 0))
sketch13.addConstraint(Sketcher.Constraint("Vertical", 1))
sketch13.addConstraint(Sketcher.Constraint("Horizontal", 2))
sketch13.addConstraint(Sketcher.Constraint("Vertical", 3))
sketch13.addConstraint(Sketcher.Constraint("Coincident", 3, 2, -1, 1))
sketch13.addConstraint(Sketcher.Constraint("DistanceX", 0, 2, 0, 1, Q("32.1 mm")))
sketch13.addConstraint(Sketcher.Constraint("DistanceY", 1, 2, 1, 1, Q("1.5 mm")))
pad9 = body.newObject("PartDesign::Pad", "Pad008")
pad9.Profile = sketch13
pad9.Length = 19
pad9.Reversed = True

sketch14 = body.newObject("Sketcher::SketchObject", "Sketch013")
sketch14.AttachmentSupport = (doc.getObject("XY_Plane"), [""])
sketch14.MapMode = "FlatFace"
sketch14.AttachmentOffset = App.Placement(V(0, 0, -1.5), App.Rotation())
sketch14.addGeometry(Part.LineSegment(V(-7, 10, 0), V(-7, 3, 0)), False)
sketch14.addGeometry(Part.LineSegment(V(-7, 3, 0), V(-21, 3, 0)), False)
sketch14.addGeometry(Part.LineSegment(V(-21, 3, 0), V(-21, 10, 0)), False)
sketch14.addGeometry(Part.LineSegment(V(-21, 10, 0), V(-7, 10, 0)), False)
sketch14.addConstraint(Sketcher.Constraint("Coincident", 0, 2, 1, 1))
sketch14.addConstraint(Sketcher.Constraint("Coincident", 1, 2, 2, 1))
sketch14.addConstraint(Sketcher.Constraint("Coincident", 2, 2, 3, 1))
sketch14.addConstraint(Sketcher.Constraint("Coincident", 3, 2, 0, 1))
sketch14.addConstraint(Sketcher.Constraint("Vertical", 0))
sketch14.addConstraint(Sketcher.Constraint("Horizontal", 1))
sketch14.addConstraint(Sketcher.Constraint("Vertical", 2))
sketch14.addConstraint(Sketcher.Constraint("Horizontal", 3))
sketch14.addConstraint(Sketcher.Constraint("DistanceX", 1, 2, 1, 1, Q("14 mm")))
sketch14.addConstraint(Sketcher.Constraint("DistanceY", 0, 2, 0, 1, Q("7 mm")))
sketch14.addConstraint(Sketcher.Constraint("DistanceY", -1, 1, 0, 2, Q("3 mm")))
sketch14.addConstraint(Sketcher.Constraint("DistanceX", 0, 2, -1, 1, Q("6.7 mm")))
pocket5 = body.newObject("PartDesign::Pocket", "Pocket004")
pocket5.Profile = sketch14
pocket5.Length = 1.5
pocket5.Reversed = True

sketch15 = body.newObject("Sketcher::SketchObject", "Sketch014")
sketch15.AttachmentSupport = (doc.getObject("XZ_Plane"), [""])
sketch15.MapMode = "FlatFace"
sketch15.addGeometry(Part.LineSegment(V(1.5, 65.6, 0), V(0, 65.6, 0)), False)
sketch15.addGeometry(Part.LineSegment(V(0, 65.6, 0), V(0, -1.5, 0)), False)
sketch15.addGeometry(Part.LineSegment(V(0, -1.5, 0), V(1.5, -1.5, 0)), False)
sketch15.addGeometry(Part.LineSegment(V(1.5, -1.5, 0), V(1.5, 65.6, 0)), False)
sketch15.addConstraint(Sketcher.Constraint("Coincident", 0, 2, 1, 1))
sketch15.addConstraint(Sketcher.Constraint("Coincident", 1, 2, 2, 1))
sketch15.addConstraint(Sketcher.Constraint("Coincident", 2, 2, 3, 1))
sketch15.addConstraint(Sketcher.Constraint("Coincident", 3, 2, 0, 1))
sketch15.addConstraint(Sketcher.Constraint("Horizontal", 0))
sketch15.addConstraint(Sketcher.Constraint("Vertical", 1))
sketch15.addConstraint(Sketcher.Constraint("Horizontal", 2))
sketch15.addConstraint(Sketcher.Constraint("Vertical", 3))
sketch15.addConstraint(Sketcher.Constraint("PointOnObject", 0, 2, -2))
sketch15.addConstraint(Sketcher.Constraint("DistanceX", 0, 2, 0, 1, Q("1.5 mm")))
sketch15.addConstraint(Sketcher.Constraint("DistanceY", 1, 2, -1, 1, Q("1.5 mm")))
sketch15.addConstraint(Sketcher.Constraint("DistanceY", 1, 2, 1, 1, Q("67.1 mm")))
pad10 = body.newObject("PartDesign::Pad", "Pad009")
pad10.Profile = sketch15
pad10.Length = 19
pad10.Reversed = True

sketch16 = body.newObject("Sketcher::SketchObject", "Sketch015")
sketch16.AttachmentSupport = (doc.getObject("XZ_Plane"), [""])
sketch16.MapMode = "FlatFace"
sketch16.addGeometry(Part.LineSegment(V(-5.3, 67.6, 0), V(-5.3, 65.6, 0)), False)
sketch16.addGeometry(Part.LineSegment(V(-5.3, 65.6, 0), V(1.5, 65.6, 0)), False)
sketch16.addGeometry(Part.LineSegment(V(1.5, 65.6, 0), V(1.5, 67.6, 0)), False)
sketch16.addGeometry(Part.LineSegment(V(1.5, 67.6, 0), V(-5.3, 67.6, 0)), False)
sketch16.addGeometry(Part.LineSegment(V(-32.1, 65.6, 0), V(-25.3, 65.6, 0)), False)
sketch16.addGeometry(Part.LineSegment(V(-25.3, 65.6, 0), V(-25.3, 67.6, 0)), False)
sketch16.addGeometry(Part.LineSegment(V(-25.3, 67.6, 0), V(-32.1, 67.6, 0)), False)
sketch16.addGeometry(Part.LineSegment(V(-32.1, 67.6, 0), V(-32.1, 65.6, 0)), False)
sketch16.addConstraint(Sketcher.Constraint("Coincident", 0, 2, 1, 1))
sketch16.addConstraint(Sketcher.Constraint("Coincident", 1, 2, 2, 1))
sketch16.addConstraint(Sketcher.Constraint("Coincident", 2, 2, 3, 1))
sketch16.addConstraint(Sketcher.Constraint("Coincident", 3, 2, 0, 1))
sketch16.addConstraint(Sketcher.Constraint("Coincident", 4, 2, 5, 1))
sketch16.addConstraint(Sketcher.Constraint("Coincident", 5, 2, 6, 1))
sketch16.addConstraint(Sketcher.Constraint("Coincident", 6, 2, 7, 1))
sketch16.addConstraint(Sketcher.Constraint("Coincident", 7, 2, 4, 1))
sketch16.addConstraint(Sketcher.Constraint("Vertical", 0))
sketch16.addConstraint(Sketcher.Constraint("Horizontal", 1))
sketch16.addConstraint(Sketcher.Constraint("Vertical", 2))
sketch16.addConstraint(Sketcher.Constraint("Horizontal", 3))
sketch16.addConstraint(Sketcher.Constraint("Horizontal", 4))
sketch16.addConstraint(Sketcher.Constraint("Vertical", 5))
sketch16.addConstraint(Sketcher.Constraint("Horizontal", 6))
sketch16.addConstraint(Sketcher.Constraint("Vertical", 7))
sketch16.addConstraint(Sketcher.Constraint("Horizontal", 1, 2, 4, 2))
sketch16.addConstraint(Sketcher.Constraint("Horizontal", 3, 2, 5, 2))
sketch16.addConstraint(Sketcher.Constraint("Equal", 3, 4))
sketch16.addConstraint(Sketcher.Constraint("DistanceY", 0, 2, 0, 1, Q("2 mm")))
sketch16.addConstraint(Sketcher.Constraint("DistanceX", 1, 1, 1, 2, Q("6.8 mm")))
sketch16.addConstraint(Sketcher.Constraint("DistanceX", 4, 2, 0, 2, Q("20 mm")))
sketch16.addConstraint(Sketcher.Constraint("DistanceX", 0, 2, -1, 1, Q("5.3 mm")))
sketch16.addConstraint(Sketcher.Constraint("DistanceY", -1, 1, 0, 2, Q("65.6 mm")))
pad11 = body.newObject("PartDesign::Pad", "Pad010")
pad11.Profile = sketch16
pad11.Length = 19
pad11.Reversed = True

sketch17 = body.newObject("Sketcher::SketchObject", "Sketch016")
sketch17.AttachmentSupport = (doc.getObject("XZ_Plane"), [""])
sketch17.MapMode = "FlatFace"
sketch17.addGeometry(Part.LineSegment(V(-7.3, 69.1, 0), V(-7.3, 102.6, 0)), False)
sketch17.addGeometry(Part.LineSegment(V(-7.3, 102.6, 0), V(-8.8, 102.6, 0)), False)
sketch17.addGeometry(Part.LineSegment(V(-8.8, 102.6, 0), V(-8.8, 69.1, 0)), False)
sketch17.addGeometry(Part.LineSegment(V(-8.8, 69.1, 0), V(-7.3, 69.1, 0)), False)
sketch17.addGeometry(Part.LineSegment(V(-21.8, 102.6, 0), V(-23.3, 102.6, 0)), False)
sketch17.addGeometry(Part.LineSegment(V(-23.3, 102.6, 0), V(-23.3, 69.1, 0)), False)
sketch17.addGeometry(Part.LineSegment(V(-23.3, 69.1, 0), V(-21.8, 69.1, 0)), False)
sketch17.addGeometry(Part.LineSegment(V(-21.8, 69.1, 0), V(-21.8, 102.6, 0)), False)
sketch17.addConstraint(Sketcher.Constraint("Coincident", 0, 2, 1, 1))
sketch17.addConstraint(Sketcher.Constraint("Coincident", 1, 2, 2, 1))
sketch17.addConstraint(Sketcher.Constraint("Coincident", 2, 2, 3, 1))
sketch17.addConstraint(Sketcher.Constraint("Coincident", 3, 2, 0, 1))
sketch17.addConstraint(Sketcher.Constraint("Coincident", 4, 2, 5, 1))
sketch17.addConstraint(Sketcher.Constraint("Coincident", 5, 2, 6, 1))
sketch17.addConstraint(Sketcher.Constraint("Coincident", 6, 2, 7, 1))
sketch17.addConstraint(Sketcher.Constraint("Coincident", 7, 2, 4, 1))
sketch17.addConstraint(Sketcher.Constraint("Vertical", 0))
sketch17.addConstraint(Sketcher.Constraint("Horizontal", 1))
sketch17.addConstraint(Sketcher.Constraint("Vertical", 2))
sketch17.addConstraint(Sketcher.Constraint("Horizontal", 3))
sketch17.addConstraint(Sketcher.Constraint("Horizontal", 4))
sketch17.addConstraint(Sketcher.Constraint("Vertical", 5))
sketch17.addConstraint(Sketcher.Constraint("Horizontal", 6))
sketch17.addConstraint(Sketcher.Constraint("Vertical", 7))
sketch17.addConstraint(Sketcher.Constraint("Horizontal", 1, 2, 4, 2))
sketch17.addConstraint(Sketcher.Constraint("Horizontal", 3, 2, 5, 2))
sketch17.addConstraint(Sketcher.Constraint("Equal", 3, 4))
sketch17.addConstraint(Sketcher.Constraint("DistanceX", 1, 2, 1, 1, Q("1.5 mm")))
sketch17.addConstraint(Sketcher.Constraint("DistanceY", 0, 1, 0, 2, Q("33.5 mm")))
sketch17.addConstraint(Sketcher.Constraint("DistanceX", 4, 2, 0, 2, Q("16 mm")))
sketch17.addConstraint(Sketcher.Constraint("DistanceX", 0, 2, -1, 1, Q("7.3 mm")))
sketch17.addConstraint(Sketcher.Constraint("DistanceY", -1, 1, 0, 2, Q("102.6 mm")))
pad12 = body.newObject("PartDesign::Pad", "Pad011")
pad12.Profile = sketch17
pad12.Length = 24
pad12.Reversed = True

sketch18 = body.newObject("Sketcher::SketchObject", "Sketch017")
sketch18.AttachmentSupport = (doc.getObject("XZ_Plane"), [""])
sketch18.MapMode = "FlatFace"
sketch18.addGeometry(Part.LineSegment(V(-21.8, 69.1, 0), V(-26.8, 69.1, 0)), False)
sketch18.addGeometry(Part.LineSegment(V(-26.8, 69.1, 0), V(-26.8, 67.6, 0)), False)
sketch18.addGeometry(Part.LineSegment(V(-26.8, 67.6, 0), V(-21.8, 67.6, 0)), False)
sketch18.addGeometry(Part.LineSegment(V(-21.8, 67.6, 0), V(-21.8, 69.1, 0)), False)
sketch18.addGeometry(Part.LineSegment(V(-8.8, 69.1, 0), V(-8.8, 67.6, 0)), False)
sketch18.addGeometry(Part.LineSegment(V(-8.8, 67.6, 0), V(-3.8, 67.6, 0)), False)
sketch18.addGeometry(Part.LineSegment(V(-3.8, 67.6, 0), V(-3.8, 69.1, 0)), False)
sketch18.addGeometry(Part.LineSegment(V(-3.8, 69.1, 0), V(-8.8, 69.1, 0)), False)
sketch18.addConstraint(Sketcher.Constraint("Coincident", 0, 2, 1, 1))
sketch18.addConstraint(Sketcher.Constraint("Coincident", 1, 2, 2, 1))
sketch18.addConstraint(Sketcher.Constraint("Coincident", 2, 2, 3, 1))
sketch18.addConstraint(Sketcher.Constraint("Coincident", 3, 2, 0, 1))
sketch18.addConstraint(Sketcher.Constraint("Coincident", 4, 2, 5, 1))
sketch18.addConstraint(Sketcher.Constraint("Coincident", 5, 2, 6, 1))
sketch18.addConstraint(Sketcher.Constraint("Coincident", 6, 2, 7, 1))
sketch18.addConstraint(Sketcher.Constraint("Coincident", 7, 2, 4, 1))
sketch18.addConstraint(Sketcher.Constraint("Horizontal", 0))
sketch18.addConstraint(Sketcher.Constraint("Vertical", 1))
sketch18.addConstraint(Sketcher.Constraint("Horizontal", 2))
sketch18.addConstraint(Sketcher.Constraint("Vertical", 3))
sketch18.addConstraint(Sketcher.Constraint("Vertical", 4))
sketch18.addConstraint(Sketcher.Constraint("Horizontal", 5))
sketch18.addConstraint(Sketcher.Constraint("Vertical", 6))
sketch18.addConstraint(Sketcher.Constraint("Horizontal", 7))
sketch18.addConstraint(Sketcher.Constraint("Horizontal", 2, 2, 4, 2))
sketch18.addConstraint(Sketcher.Constraint("Horizontal", 3, 2, 6, 2))
sketch18.addConstraint(Sketcher.Constraint("Equal", 2, 5))
sketch18.addConstraint(Sketcher.Constraint("DistanceY", 1, 2, 1, 1, Q("1.5 mm")))
sketch18.addConstraint(Sketcher.Constraint("DistanceX", 0, 2, 0, 1, Q("5 mm")))
sketch18.addConstraint(Sketcher.Constraint("DistanceX", 2, 2, 4, 2, Q("13 mm")))
sketch18.addConstraint(Sketcher.Constraint("DistanceX", 0, 2, -1, 1, Q("26.8 mm")))
sketch18.addConstraint(Sketcher.Constraint("DistanceY", -1, 1, 0, 2, Q("69.1 mm")))
pad13 = body.newObject("PartDesign::Pad", "Pad012")
pad13.Profile = sketch18
pad13.Length = 19
pad13.Reversed = True

doc.recompute()
